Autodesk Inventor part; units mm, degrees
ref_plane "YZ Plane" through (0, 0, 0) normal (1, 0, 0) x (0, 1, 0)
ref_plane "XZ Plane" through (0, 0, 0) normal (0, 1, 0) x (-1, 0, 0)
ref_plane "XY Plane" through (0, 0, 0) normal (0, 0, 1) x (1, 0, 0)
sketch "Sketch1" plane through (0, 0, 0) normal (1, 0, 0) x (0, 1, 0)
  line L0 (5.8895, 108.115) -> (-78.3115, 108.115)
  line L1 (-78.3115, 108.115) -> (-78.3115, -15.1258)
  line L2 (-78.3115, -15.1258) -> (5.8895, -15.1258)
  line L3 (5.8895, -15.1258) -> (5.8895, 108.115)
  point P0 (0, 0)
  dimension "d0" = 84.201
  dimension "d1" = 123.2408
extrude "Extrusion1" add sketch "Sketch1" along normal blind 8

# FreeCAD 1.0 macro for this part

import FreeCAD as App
import Part
import Sketcher
Q = App.Units.Quantity

doc = App.newDocument("Part")
params = doc.addObject("Spreadsheet::Sheet", "Params")
for row, (alias, value) in enumerate([
    ("sketch1_width", "3.315 in"),
    ("sketch1_height", "4.852 in"),
    ("pad1_length", "8 mm"),
], start=1):
    params.set(f"A{row}", alias)
    params.set(f"B{row}", "=" + value)
    params.setAlias(f"B{row}", alias)

body = doc.addObject("PartDesign::Body", "Body")

sketch1 = body.newObject("Sketcher::SketchObject", "Sketch")
sketch1.AttachmentSupport = (doc.getObject("YZ_Plane"), [""])
sketch1.MapMode = "FlatFace"
sketch1.addGeometry(Part.LineSegment(App.Vector(6, -15, 0), App.Vector(6, 108, 0)), False)
sketch1.addGeometry(Part.LineSegment(App.Vector(6, 108, 0), App.Vector(-78, 108, 0)), False)
sketch1.addGeometry(Part.LineSegment(App.Vector(-78, 108, 0), App.Vector(-78, -15, 0)), False)
sketch1.addGeometry(Part.LineSegment(App.Vector(-78, -15, 0), App.Vector(6, -15, 0)), False)
sketch1.addConstraint(Sketcher.Constraint("Coincident", 0, 2, 1, 1))
sketch1.addConstraint(Sketcher.Constraint("Coincident", 1, 2, 2, 1))
sketch1.addConstraint(Sketcher.Constraint("Coincident", 2, 2, 3, 1))
sketch1.addConstraint(Sketcher.Constraint("Coincident", 3, 2, 0, 1))
sketch1.addConstraint(Sketcher.Constraint("Vertical", 0))
sketch1.addConstraint(Sketcher.Constraint("Horizontal", 1))
sketch1.addConstraint(Sketcher.Constraint("Vertical", 2))
sketch1.addConstraint(Sketcher.Constraint("Horizontal", 3))
sketch1.addConstraint(Sketcher.Constraint("DistanceX", 1, 2, 1, 1, Q("3.315 in")))
sketch1.addConstraint(Sketcher.Constraint("DistanceY", 0, 1, 0, 2, Q("4.852 in")))
sketch1.addConstraint(Sketcher.Constraint("DistanceY", -1, 1, 0, 2, Q("4.2565 in")))
sketch1.addConstraint(Sketcher.Constraint("DistanceX", -1, 1, 0, 2, Q("5.8895 mm")))
sketch1.setExpression("Constraints[8]", "Params.sketch1_width")
sketch1.setExpression("Constraints[9]", "Params.sketch1_height")
pad1 = body.newObject("PartDesign::Pad", "Pad")
pad1.Profile = sketch1
pad1.setExpression("Length", "Params.pad1_length")

doc.recompute()
